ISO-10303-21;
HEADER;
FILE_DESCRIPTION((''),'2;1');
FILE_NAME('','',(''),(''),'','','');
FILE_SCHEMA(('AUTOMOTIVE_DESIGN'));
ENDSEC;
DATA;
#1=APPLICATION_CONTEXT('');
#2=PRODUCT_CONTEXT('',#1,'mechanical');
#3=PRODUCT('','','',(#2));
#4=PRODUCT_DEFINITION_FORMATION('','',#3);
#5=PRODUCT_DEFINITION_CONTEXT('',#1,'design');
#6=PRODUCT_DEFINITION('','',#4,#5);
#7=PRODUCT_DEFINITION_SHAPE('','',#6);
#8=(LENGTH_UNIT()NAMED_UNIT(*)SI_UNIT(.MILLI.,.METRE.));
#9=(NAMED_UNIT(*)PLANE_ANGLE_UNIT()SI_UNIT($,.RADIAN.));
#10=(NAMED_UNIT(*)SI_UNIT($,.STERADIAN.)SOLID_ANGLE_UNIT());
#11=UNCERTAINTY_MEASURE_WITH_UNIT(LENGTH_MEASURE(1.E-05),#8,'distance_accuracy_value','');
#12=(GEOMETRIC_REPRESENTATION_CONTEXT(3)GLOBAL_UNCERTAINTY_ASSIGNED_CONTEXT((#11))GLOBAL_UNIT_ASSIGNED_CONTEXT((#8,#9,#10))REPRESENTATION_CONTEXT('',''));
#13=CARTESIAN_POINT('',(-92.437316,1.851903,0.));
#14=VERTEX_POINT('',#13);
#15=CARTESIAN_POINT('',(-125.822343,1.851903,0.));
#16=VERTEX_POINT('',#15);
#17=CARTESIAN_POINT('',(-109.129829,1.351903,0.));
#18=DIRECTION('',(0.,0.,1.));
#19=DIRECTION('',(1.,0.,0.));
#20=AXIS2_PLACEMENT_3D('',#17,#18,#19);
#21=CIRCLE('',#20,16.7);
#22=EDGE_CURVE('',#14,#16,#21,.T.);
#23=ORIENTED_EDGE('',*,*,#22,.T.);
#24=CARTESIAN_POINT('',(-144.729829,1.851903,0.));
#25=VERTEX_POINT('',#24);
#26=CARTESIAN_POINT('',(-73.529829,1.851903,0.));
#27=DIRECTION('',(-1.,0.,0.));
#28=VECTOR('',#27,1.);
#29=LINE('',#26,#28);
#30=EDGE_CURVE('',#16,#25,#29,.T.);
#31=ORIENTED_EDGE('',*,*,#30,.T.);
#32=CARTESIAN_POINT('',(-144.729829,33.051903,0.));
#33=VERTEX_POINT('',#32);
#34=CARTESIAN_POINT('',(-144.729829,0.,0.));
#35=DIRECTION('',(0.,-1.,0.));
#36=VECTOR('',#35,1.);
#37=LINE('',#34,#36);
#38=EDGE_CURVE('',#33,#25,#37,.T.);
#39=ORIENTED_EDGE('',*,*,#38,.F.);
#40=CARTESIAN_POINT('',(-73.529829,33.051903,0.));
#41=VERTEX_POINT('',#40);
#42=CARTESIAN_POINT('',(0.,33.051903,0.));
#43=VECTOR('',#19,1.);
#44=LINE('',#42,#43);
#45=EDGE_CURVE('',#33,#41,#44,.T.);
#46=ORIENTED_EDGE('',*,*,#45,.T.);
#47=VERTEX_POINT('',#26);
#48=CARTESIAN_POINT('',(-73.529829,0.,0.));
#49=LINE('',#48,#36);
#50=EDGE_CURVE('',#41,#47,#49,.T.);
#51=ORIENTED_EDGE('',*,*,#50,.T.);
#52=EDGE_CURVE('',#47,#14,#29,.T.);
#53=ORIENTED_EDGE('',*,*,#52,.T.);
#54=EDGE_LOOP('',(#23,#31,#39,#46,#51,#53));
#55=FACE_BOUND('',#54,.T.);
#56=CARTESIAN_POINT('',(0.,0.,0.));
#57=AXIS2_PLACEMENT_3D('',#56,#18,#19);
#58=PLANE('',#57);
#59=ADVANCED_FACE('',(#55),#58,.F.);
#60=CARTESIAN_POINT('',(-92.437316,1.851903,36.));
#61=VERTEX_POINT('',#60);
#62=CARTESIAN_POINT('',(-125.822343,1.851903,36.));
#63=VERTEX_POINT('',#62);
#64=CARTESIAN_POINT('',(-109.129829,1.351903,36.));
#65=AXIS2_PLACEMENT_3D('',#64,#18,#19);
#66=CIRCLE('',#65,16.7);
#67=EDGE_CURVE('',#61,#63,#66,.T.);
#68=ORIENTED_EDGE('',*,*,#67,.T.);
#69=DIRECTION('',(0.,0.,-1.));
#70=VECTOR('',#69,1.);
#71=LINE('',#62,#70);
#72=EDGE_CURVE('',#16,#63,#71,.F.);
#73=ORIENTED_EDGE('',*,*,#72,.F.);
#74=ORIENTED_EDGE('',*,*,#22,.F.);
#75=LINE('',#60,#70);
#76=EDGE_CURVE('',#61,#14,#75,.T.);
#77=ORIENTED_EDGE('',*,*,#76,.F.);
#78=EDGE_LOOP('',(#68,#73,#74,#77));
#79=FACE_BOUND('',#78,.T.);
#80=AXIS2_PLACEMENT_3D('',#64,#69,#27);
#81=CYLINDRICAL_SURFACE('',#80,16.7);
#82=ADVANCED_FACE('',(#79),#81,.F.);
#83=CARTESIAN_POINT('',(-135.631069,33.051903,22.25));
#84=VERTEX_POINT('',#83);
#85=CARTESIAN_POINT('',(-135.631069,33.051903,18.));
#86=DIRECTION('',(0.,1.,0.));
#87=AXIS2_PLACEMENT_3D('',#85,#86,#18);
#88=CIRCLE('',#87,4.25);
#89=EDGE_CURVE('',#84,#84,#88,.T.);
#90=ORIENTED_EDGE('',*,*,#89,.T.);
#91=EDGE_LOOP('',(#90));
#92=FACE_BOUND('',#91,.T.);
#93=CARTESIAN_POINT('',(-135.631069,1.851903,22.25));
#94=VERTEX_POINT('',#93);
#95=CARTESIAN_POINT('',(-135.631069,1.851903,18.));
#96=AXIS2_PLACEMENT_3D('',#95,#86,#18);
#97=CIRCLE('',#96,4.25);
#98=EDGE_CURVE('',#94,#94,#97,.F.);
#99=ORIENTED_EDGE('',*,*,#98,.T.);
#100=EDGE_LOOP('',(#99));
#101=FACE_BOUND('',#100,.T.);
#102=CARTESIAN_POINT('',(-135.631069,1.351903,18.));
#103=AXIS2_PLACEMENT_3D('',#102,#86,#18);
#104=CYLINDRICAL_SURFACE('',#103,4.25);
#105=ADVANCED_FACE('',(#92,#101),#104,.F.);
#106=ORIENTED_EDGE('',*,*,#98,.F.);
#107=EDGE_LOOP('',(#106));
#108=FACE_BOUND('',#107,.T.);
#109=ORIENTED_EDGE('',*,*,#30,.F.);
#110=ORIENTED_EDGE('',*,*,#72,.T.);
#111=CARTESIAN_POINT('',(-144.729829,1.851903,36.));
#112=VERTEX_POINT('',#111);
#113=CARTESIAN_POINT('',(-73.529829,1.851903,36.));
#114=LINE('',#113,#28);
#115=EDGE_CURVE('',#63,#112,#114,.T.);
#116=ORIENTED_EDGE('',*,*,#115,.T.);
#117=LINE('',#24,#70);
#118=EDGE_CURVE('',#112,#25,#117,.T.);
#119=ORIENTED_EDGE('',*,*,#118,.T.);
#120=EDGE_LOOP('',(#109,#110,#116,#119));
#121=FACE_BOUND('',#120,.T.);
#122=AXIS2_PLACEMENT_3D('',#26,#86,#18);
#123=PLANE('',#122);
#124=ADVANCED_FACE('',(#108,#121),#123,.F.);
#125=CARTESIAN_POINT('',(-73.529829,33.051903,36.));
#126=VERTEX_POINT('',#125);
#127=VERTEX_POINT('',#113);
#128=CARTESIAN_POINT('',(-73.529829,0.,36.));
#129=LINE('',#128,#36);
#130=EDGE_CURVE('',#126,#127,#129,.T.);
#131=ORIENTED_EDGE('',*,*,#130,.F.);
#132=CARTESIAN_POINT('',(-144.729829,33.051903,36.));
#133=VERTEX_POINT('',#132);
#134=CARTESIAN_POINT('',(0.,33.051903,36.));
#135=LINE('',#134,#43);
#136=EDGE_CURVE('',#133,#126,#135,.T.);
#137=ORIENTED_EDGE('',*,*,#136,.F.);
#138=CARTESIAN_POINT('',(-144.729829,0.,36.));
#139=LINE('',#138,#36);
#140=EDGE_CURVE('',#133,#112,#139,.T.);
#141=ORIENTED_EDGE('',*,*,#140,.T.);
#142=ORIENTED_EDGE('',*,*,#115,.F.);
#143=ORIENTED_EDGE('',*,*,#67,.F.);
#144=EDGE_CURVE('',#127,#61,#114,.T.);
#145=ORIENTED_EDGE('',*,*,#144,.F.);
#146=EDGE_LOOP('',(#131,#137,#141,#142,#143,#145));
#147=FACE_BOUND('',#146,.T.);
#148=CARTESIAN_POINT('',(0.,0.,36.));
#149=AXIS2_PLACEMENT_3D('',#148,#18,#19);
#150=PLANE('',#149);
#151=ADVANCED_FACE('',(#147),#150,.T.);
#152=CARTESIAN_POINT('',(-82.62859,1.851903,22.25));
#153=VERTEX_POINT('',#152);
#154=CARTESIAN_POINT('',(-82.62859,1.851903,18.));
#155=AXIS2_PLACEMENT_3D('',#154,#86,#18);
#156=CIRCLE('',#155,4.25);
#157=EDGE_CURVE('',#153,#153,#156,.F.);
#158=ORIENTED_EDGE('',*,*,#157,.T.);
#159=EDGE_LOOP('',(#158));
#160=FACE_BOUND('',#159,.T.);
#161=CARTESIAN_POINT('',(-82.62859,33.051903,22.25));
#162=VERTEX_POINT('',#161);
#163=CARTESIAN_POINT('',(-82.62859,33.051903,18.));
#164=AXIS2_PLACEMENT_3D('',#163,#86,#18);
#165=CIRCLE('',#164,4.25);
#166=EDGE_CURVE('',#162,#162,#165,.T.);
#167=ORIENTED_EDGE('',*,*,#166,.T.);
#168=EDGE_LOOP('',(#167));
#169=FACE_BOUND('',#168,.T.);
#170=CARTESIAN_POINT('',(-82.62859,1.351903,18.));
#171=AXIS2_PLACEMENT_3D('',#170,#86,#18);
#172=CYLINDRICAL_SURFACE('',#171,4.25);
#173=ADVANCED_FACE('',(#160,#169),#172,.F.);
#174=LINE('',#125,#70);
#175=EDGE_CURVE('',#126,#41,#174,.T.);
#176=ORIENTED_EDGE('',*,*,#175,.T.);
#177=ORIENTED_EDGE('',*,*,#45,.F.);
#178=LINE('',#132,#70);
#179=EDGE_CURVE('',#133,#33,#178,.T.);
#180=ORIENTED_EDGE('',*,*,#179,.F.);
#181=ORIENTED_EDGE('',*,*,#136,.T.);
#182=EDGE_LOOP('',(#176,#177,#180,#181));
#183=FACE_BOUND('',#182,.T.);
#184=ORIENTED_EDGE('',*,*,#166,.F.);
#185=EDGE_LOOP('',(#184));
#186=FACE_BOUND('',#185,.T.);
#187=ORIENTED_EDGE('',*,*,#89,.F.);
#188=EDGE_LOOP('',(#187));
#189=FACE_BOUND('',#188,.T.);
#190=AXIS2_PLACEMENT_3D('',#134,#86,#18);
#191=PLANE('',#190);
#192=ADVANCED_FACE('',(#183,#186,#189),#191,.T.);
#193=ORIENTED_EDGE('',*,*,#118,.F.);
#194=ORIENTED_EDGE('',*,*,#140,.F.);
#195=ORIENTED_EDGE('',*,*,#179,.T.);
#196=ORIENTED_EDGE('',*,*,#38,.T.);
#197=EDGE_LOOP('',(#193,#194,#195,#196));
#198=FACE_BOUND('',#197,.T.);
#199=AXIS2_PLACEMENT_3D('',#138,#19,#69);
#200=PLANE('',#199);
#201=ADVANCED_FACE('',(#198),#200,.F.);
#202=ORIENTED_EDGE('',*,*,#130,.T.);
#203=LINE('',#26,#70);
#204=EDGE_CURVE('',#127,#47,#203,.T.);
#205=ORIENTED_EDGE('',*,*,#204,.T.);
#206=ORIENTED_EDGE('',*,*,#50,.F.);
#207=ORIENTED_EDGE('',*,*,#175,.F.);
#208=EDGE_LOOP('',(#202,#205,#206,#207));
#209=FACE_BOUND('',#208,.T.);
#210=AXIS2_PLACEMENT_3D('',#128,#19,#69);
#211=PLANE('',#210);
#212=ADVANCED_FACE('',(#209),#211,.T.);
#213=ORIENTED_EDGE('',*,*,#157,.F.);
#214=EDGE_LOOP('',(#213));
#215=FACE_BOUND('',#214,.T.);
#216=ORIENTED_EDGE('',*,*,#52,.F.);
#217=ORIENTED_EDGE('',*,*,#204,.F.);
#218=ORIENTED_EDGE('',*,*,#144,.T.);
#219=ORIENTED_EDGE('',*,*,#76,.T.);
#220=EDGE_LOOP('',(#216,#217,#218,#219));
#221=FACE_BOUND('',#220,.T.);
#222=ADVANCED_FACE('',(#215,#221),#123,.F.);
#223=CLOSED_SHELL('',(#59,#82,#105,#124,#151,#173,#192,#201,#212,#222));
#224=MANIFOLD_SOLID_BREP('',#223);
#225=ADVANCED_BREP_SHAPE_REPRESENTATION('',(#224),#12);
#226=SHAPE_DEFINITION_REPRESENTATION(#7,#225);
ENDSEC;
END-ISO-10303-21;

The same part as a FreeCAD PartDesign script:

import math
import FreeCAD as App
import Part
import Sketcher
Q = App.Units.Quantity

doc = App.newDocument("Part")
params = doc.addObject("Spreadsheet::Sheet", "Params")
for row, (alias, value) in enumerate([
    ("sketch1_radius", "16.7 mm"),
    ("sketch1_width", "71.2 mm"),
    ("sketch1_height", "31.7 mm"),
    ("pad1_length", "36 mm"),
    ("sketch2_diameter", "8.5 mm"),
    ("sketch3_height", "36 mm"),
    ("sketch3_width", "0.5 mm"),
], start=1):
    params.set(f"A{row}", alias)
    params.set(f"B{row}", "=" + value)
    params.setAlias(f"B{row}", alias)

body = doc.addObject("PartDesign::Body", "Body")

sketch1 = body.newObject("Sketcher::SketchObject", "Sketch")
sketch1.AttachmentSupport = (doc.getObject("XY_Plane"), [""])
sketch1.MapMode = "FlatFace"
sketch1.addGeometry([
    Part.LineSegment(App.Vector(-74, 33, 0), App.Vector(-145, 33, 0)),
    Part.LineSegment(App.Vector(-145, 33, 0), App.Vector(-145, 1, 0)),
    Part.LineSegment(App.Vector(-145, 1, 0), App.Vector(-126, 1, 0)),
    Part.ArcOfCircle(Part.Circle(App.Vector(-109, 1, 0), App.Vector(0, 0, 1), 17), math.radians(0), math.radians(180)),
    Part.LineSegment(App.Vector(-92, 1, 0), App.Vector(-74, 1, 0)),
    Part.LineSegment(App.Vector(-74, 1, 0), App.Vector(-74, 33, 0)),
], False)
sketch1.addConstraint([
    Sketcher.Constraint("Coincident", 0, 2, 1, 1),
    Sketcher.Constraint("Coincident", 1, 2, 2, 1),
    Sketcher.Constraint("Coincident", 2, 2, 3, 2),
    Sketcher.Constraint("Coincident", 3, 1, 4, 1),
    Sketcher.Constraint("Coincident", 4, 2, 5, 1),
    Sketcher.Constraint("Coincident", 5, 2, 0, 1),
    Sketcher.Constraint("Horizontal", 0),
    Sketcher.Constraint("Vertical", 1),
    Sketcher.Constraint("Horizontal", 2),
    Sketcher.Constraint("Horizontal", 4),
    Sketcher.Constraint("Vertical", 5),
    Sketcher.Constraint("Horizontal", 3, 3, 1, 2),
    Sketcher.Constraint("Horizontal", 2, 2, 3, 1),
    Sketcher.Constraint("Equal", 2, 4),
    Sketcher.Constraint("Radius", 3, Q("16.7 mm")),
    Sketcher.Constraint("DistanceX", 0, 2, 0, 1, Q("71.2 mm")),
    Sketcher.Constraint("DistanceY", 1, 2, 1, 1, Q("31.7 mm")),
    Sketcher.Constraint("DistanceX", 3, 3, -1, 1, Q("109.129829 mm")),
    Sketcher.Constraint("DistanceY", -1, 1, 3, 3, Q("1.351903 mm")),
])
sketch1.setExpression("Constraints[14]", "Params.sketch1_radius")
sketch1.setExpression("Constraints[15]", "Params.sketch1_width")
sketch1.setExpression("Constraints[16]", "Params.sketch1_height")
pad1 = body.newObject("PartDesign::Pad", "Pad")
pad1.Profile = sketch1
pad1.setExpression("Length", "Params.pad1_length")

sketch2 = body.newObject("Sketcher::SketchObject", "Sketch001")
sketch2.AttachmentSupport = (doc.getObject("XZ_Plane"), [""])
sketch2.MapMode = "FlatFace"
sketch2.AttachmentOffset = App.Placement(App.Vector(0, 0, -33.051903), App.Rotation())
sketch2.addGeometry([
    Part.Circle(App.Vector(-82.6, 18, 0), App.Vector(0, 0, 1), 4.2),
    Part.Circle(App.Vector(-135.6, 18, 0), App.Vector(0, 0, 1), 4.2),
], False)
sketch2.addConstraint([
    Sketcher.Constraint("Equal", 0, 1),
    Sketcher.Constraint("Horizontal", 0, 3, 1, 3),
    Sketcher.Constraint("Diameter", 0, Q("8.5 mm")),
    Sketcher.Constraint("DistanceY", -1, 1, 0, 3, Q("18 mm")),
    Sketcher.Constraint("DistanceX", 0, 3, -1, 1, Q("82.62859 mm")),
    Sketcher.Constraint("DistanceX", 1, 3, -1, 1, Q("135.631069 mm")),
])
sketch2.setExpression("Constraints[2]", "Params.sketch2_diameter")
pocket1 = body.newObject("PartDesign::Pocket", "Pocket")
pocket1.Profile = sketch2
pocket1.Type = "ThroughAll"
pocket1.Reversed = True

sketch3 = body.newObject("Sketcher::SketchObject", "Sketch002")
sketch3.AttachmentSupport = (doc.getObject("YZ_Plane"), [""])
sketch3.MapMode = "FlatFace"
sketch3.AttachmentOffset = App.Placement(App.Vector(0, 0, -144.729829), App.Rotation())
sketch3.addGeometry([
    Part.LineSegment(App.Vector(1.9, 0, 0), App.Vector(1.4, 0, 0)),
    Part.LineSegment(App.Vector(1.4, 0, 0), App.Vector(1.4, 36, 0)),
    Part.LineSegment(App.Vector(1.4, 36, 0), App.Vector(1.9, 36, 0)),
    Part.LineSegment(App.Vector(1.9, 36, 0), App.Vector(1.9, 0, 0)),
], False)
sketch3.addConstraint([
    Sketcher.Constraint("Coincident", 0, 2, 1, 1),
    Sketcher.Constraint("Coincident", 1, 2, 2, 1),
    Sketcher.Constraint("Coincident", 2, 2, 3, 1),
    Sketcher.Constraint("Coincident", 3, 2, 0, 1),
    Sketcher.Constraint("Horizontal", 0),
    Sketcher.Constraint("Vertical", 1),
    Sketcher.Constraint("Horizontal", 2),
    Sketcher.Constraint("Vertical", 3),
    Sketcher.Constraint("PointOnObject", 0, 2, -1),
    Sketcher.Constraint("DistanceY", 1, 1, 1, 2, Q("36 mm")),
    Sketcher.Constraint("DistanceX", 0, 2, 0, 1, Q("0.5 mm")),
    Sketcher.Constraint("DistanceX", -1, 1, 0, 2, Q("1.351903 mm")),
])
sketch3.setExpression("Constraints[9]", "Params.sketch3_height")
sketch3.setExpression("Constraints[10]", "Params.sketch3_width")
pocket2 = body.newObject("PartDesign::Pocket", "Pocket001")
pocket2.Profile = sketch3
pocket2.Type = "ThroughAll"
pocket2.Reversed = True

doc.recompute()
